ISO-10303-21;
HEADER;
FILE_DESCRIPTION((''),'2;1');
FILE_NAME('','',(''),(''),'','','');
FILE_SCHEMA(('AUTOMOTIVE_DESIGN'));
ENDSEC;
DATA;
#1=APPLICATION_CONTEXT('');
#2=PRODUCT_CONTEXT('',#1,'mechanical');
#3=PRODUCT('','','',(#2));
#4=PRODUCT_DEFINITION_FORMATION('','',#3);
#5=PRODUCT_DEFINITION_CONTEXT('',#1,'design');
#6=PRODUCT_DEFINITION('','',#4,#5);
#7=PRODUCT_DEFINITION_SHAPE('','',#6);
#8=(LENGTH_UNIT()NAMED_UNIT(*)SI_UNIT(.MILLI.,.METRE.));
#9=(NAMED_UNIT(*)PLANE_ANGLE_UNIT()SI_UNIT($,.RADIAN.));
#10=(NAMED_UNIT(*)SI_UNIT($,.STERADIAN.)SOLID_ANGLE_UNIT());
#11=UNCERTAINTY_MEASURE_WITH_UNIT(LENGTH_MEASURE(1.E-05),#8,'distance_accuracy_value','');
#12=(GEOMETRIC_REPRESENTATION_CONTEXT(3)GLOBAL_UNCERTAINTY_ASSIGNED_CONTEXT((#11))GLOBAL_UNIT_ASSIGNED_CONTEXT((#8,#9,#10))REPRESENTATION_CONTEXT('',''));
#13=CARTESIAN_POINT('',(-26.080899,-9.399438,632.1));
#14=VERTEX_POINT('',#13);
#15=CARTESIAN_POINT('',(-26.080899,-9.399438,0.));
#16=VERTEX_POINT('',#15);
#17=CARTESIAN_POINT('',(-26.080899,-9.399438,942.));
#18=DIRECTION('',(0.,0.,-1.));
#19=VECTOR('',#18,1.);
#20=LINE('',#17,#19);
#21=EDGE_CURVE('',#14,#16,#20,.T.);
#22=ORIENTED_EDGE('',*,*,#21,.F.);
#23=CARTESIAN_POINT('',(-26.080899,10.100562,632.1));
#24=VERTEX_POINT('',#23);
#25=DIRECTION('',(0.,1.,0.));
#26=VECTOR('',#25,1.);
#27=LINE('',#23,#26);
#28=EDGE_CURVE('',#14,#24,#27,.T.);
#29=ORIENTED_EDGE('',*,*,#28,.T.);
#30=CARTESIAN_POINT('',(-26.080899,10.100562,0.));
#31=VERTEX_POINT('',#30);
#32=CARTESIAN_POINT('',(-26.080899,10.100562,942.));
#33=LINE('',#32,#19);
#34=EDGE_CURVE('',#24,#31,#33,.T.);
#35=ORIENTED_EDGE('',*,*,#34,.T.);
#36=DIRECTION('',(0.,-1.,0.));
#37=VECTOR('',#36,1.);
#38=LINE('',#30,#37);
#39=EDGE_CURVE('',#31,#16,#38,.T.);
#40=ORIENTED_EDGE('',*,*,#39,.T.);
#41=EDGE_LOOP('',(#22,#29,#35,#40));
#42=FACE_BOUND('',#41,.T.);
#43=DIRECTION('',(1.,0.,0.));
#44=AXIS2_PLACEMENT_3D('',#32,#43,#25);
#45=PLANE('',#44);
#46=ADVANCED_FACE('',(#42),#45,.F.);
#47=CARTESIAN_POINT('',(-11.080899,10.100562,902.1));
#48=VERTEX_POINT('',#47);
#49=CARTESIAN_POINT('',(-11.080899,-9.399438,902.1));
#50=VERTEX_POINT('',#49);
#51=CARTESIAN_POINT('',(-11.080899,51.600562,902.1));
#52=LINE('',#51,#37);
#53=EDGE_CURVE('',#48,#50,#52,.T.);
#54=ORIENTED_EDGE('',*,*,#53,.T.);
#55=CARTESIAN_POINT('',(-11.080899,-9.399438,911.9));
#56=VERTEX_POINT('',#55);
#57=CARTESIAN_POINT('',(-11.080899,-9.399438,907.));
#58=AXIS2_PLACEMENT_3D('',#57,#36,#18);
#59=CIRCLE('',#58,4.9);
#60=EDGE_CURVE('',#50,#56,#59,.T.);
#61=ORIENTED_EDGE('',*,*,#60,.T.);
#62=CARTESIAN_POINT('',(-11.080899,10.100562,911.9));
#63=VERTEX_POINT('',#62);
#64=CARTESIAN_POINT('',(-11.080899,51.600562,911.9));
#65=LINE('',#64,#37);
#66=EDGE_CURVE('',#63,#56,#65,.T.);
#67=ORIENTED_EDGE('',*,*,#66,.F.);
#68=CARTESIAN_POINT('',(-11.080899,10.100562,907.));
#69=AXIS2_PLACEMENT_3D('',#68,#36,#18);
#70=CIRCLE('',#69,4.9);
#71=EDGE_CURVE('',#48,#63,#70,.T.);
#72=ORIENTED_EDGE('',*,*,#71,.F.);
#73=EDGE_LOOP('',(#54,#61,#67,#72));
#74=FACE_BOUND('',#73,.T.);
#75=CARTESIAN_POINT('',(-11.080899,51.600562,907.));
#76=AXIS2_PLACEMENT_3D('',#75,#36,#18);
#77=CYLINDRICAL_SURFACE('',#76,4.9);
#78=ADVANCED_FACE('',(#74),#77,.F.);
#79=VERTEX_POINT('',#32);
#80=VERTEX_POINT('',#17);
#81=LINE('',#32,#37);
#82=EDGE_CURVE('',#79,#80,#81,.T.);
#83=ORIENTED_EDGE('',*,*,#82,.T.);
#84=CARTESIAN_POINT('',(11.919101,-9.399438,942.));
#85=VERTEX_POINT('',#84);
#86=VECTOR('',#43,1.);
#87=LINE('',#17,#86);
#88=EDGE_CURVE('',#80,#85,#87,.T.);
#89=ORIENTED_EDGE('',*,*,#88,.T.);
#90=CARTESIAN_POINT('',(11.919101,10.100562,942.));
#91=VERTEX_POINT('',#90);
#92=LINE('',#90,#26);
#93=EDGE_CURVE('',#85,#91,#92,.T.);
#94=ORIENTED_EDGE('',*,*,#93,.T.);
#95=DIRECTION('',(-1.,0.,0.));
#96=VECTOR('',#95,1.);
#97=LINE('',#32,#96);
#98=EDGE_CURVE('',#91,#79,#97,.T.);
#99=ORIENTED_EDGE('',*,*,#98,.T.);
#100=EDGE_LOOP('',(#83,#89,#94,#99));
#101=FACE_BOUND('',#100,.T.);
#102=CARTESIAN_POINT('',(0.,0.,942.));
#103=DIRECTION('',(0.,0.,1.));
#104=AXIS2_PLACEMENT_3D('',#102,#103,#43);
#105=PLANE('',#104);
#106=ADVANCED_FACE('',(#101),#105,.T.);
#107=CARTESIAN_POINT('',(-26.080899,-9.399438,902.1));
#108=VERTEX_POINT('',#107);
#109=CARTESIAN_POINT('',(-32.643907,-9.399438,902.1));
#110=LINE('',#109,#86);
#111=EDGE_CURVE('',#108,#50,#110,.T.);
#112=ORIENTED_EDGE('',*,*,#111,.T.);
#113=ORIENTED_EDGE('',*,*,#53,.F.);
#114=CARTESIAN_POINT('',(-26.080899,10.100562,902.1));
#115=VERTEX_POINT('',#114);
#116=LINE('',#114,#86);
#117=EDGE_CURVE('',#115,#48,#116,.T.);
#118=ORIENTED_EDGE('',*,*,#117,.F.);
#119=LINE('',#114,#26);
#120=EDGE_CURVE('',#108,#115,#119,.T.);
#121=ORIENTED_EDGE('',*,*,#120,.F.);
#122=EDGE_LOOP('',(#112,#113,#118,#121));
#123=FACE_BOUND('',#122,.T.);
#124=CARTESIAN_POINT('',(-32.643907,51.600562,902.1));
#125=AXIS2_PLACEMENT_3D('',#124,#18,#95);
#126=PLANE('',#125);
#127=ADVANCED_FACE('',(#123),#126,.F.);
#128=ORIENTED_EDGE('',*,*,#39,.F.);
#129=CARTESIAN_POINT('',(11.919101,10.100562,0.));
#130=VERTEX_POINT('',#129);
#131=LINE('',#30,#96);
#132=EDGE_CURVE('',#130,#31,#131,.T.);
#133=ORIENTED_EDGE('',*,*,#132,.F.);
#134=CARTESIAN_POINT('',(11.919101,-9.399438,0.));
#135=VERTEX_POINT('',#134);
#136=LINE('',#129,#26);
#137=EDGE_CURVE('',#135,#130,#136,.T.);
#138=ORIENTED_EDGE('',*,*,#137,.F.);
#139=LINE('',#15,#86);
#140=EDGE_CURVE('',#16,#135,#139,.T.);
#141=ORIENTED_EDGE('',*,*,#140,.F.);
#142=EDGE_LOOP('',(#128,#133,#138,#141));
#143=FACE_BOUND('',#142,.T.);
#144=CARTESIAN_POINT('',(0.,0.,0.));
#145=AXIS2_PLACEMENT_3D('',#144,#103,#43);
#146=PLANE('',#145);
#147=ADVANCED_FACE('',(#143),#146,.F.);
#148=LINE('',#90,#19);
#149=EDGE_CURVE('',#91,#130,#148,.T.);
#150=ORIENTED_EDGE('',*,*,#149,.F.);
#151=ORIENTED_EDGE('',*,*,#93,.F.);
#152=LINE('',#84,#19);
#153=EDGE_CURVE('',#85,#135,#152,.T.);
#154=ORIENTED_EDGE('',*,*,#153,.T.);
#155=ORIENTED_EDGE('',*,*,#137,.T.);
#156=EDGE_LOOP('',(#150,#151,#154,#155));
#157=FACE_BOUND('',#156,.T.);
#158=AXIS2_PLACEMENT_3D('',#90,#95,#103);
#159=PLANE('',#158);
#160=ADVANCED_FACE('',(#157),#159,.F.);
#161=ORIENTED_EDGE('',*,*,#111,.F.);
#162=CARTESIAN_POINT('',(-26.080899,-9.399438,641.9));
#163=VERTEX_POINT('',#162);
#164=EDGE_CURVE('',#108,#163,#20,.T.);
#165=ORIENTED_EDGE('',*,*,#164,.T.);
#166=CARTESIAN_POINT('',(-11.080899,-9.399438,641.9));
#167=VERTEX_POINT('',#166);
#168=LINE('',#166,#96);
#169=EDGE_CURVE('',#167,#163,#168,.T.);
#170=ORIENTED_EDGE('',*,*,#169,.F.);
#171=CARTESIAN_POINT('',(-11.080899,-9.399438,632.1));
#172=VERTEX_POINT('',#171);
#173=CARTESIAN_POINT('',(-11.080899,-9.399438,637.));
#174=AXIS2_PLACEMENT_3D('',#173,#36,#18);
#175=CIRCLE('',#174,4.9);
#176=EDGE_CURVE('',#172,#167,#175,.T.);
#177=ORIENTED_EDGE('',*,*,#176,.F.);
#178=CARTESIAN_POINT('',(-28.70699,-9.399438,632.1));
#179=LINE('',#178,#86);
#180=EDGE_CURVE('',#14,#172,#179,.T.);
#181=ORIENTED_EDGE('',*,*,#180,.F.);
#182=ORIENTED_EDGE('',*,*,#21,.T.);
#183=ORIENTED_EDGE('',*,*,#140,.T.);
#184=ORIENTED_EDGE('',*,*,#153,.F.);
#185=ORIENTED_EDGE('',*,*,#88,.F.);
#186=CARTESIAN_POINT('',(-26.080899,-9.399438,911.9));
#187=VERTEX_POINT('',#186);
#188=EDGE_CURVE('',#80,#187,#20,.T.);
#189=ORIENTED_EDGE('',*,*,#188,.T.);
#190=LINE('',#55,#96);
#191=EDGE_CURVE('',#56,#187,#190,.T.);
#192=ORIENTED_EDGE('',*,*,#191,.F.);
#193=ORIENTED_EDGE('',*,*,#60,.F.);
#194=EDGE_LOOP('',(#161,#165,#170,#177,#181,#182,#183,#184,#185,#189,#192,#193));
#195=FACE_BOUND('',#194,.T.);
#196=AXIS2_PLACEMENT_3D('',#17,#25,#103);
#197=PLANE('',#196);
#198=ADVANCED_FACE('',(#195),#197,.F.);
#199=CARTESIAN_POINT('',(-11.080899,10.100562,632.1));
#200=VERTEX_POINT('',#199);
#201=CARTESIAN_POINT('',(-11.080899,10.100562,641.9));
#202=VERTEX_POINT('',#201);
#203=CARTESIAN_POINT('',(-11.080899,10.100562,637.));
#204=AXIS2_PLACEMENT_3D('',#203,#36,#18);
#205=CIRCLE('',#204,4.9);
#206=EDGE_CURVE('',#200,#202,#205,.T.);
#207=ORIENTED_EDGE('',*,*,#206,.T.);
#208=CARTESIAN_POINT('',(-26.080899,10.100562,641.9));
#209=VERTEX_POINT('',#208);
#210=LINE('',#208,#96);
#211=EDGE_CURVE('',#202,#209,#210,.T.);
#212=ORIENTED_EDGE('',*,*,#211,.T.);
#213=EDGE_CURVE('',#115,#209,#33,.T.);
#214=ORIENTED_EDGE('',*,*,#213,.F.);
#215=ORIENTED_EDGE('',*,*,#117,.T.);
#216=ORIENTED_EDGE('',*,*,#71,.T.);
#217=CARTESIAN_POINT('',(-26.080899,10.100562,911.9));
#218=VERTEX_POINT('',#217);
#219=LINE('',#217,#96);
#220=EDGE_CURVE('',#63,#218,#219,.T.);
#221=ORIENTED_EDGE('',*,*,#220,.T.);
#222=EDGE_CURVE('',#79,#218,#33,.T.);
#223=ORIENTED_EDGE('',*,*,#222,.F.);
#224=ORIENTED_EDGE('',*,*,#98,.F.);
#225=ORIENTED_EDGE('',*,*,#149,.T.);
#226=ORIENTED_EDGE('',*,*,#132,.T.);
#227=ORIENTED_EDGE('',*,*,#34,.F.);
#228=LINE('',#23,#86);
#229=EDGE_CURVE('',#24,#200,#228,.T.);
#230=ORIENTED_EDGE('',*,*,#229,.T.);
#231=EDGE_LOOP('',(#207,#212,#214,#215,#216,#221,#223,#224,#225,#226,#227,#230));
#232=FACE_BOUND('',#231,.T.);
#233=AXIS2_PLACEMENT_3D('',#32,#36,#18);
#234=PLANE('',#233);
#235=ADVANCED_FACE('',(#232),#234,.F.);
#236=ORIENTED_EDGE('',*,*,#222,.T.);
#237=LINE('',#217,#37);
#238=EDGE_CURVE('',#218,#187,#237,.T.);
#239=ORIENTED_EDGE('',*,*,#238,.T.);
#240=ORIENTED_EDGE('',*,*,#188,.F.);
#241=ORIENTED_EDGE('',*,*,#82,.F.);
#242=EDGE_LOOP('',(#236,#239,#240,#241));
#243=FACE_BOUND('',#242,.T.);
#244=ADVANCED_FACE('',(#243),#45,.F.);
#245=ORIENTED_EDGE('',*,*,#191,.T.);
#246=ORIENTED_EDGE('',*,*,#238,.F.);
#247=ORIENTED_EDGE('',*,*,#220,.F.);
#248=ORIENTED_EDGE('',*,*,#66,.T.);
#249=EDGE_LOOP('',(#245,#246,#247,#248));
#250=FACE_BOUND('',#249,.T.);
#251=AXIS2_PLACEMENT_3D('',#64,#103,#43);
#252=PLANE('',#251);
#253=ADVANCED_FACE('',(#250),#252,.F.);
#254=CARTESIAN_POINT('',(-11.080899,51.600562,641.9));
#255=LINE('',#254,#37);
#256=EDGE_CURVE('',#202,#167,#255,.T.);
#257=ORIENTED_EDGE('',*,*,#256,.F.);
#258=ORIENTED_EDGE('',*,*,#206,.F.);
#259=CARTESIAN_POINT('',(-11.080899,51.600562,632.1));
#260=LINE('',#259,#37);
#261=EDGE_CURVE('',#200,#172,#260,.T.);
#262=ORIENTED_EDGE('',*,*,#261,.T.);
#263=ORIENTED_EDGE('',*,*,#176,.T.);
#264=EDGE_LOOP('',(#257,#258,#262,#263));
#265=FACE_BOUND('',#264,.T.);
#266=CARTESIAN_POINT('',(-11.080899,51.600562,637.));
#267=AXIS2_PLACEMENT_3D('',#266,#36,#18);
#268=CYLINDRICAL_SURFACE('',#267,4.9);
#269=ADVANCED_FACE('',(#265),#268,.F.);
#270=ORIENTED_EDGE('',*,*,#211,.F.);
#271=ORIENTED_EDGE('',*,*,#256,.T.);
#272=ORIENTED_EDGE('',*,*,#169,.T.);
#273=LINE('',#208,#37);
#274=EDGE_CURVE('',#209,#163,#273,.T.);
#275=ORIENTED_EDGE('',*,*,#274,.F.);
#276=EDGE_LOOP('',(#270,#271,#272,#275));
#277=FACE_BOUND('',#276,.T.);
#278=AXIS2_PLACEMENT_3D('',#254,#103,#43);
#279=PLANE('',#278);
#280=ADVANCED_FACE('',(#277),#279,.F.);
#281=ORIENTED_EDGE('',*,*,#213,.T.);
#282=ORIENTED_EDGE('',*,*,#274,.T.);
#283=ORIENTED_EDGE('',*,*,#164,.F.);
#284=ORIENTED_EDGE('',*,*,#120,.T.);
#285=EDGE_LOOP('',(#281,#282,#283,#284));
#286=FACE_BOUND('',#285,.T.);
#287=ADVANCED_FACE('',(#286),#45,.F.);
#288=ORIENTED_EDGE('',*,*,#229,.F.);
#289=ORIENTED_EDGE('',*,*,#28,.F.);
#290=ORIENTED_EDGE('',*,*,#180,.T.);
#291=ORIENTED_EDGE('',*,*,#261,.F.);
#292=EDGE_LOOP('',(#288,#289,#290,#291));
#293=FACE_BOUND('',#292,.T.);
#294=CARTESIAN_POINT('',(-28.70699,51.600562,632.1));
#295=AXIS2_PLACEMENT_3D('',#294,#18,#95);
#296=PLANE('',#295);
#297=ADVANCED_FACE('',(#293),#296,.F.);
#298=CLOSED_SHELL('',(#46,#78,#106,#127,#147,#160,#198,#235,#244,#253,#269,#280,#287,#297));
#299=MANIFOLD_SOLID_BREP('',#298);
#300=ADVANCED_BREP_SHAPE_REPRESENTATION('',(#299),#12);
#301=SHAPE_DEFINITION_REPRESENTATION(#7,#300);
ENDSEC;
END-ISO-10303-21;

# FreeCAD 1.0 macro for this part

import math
import FreeCAD as App
import Part
import Sketcher
from FreeCAD import Vector


def add_polygon(sketch, points):
    """Adds a closed chain of lines whose ends are joined by coincident constraints."""
    first, n = sketch.GeometryCount, len(points)
    for a, b in zip(points, points[1:] + points[:1]):
        sketch.addGeometry(Part.LineSegment(App.Vector(*a, 0), App.Vector(*b, 0)), False)
    for i in range(n):
        sketch.addConstraint(Sketcher.Constraint("Coincident", first + i, 2, first + (i + 1) % n, 1))

doc = App.newDocument("Part")
body = doc.addObject("PartDesign::Body", "Body")

# Sketch on XY plane
sketch1 = body.newObject("Sketcher::SketchObject", "Sketch")
sketch1.AttachmentSupport = (doc.getObject("XY_Plane"), [""])
sketch1.MapMode = "FlatFace"
add_polygon(sketch1, [(-26.080899, 10.100562), (-26.080899, -9.399438), (11.919101, -9.399438), (11.919101, 10.100562)])  # lines 0-3
sketch1.addConstraint([
    Sketcher.Constraint("Vertical", 0),
    Sketcher.Constraint("Horizontal", 1),
    Sketcher.Constraint("Vertical", 2),
    Sketcher.Constraint("Horizontal", 3),
    Sketcher.Constraint("DistanceX", 1, 1, 1, 2, 38.0),
    Sketcher.Constraint("DistanceY", 0, 2, 0, 1, 19.5),
    Sketcher.Constraint("DistanceX", 0, 2, -1, 1, 26.080899),
    Sketcher.Constraint("DistanceY", 0, 2, -1, 1, 9.399438),
])
pad1 = body.newObject("PartDesign::Pad", "Pad")
pad1.Profile = sketch1
pad1.Length = 942

# Sketch on XZ plane
sketch2 = body.newObject("Sketcher::SketchObject", "Sketch001")
sketch2.AttachmentSupport = (doc.getObject("XZ_Plane"), [""])
sketch2.MapMode = "FlatFace"
sketch2.AttachmentOffset = App.Placement(Vector(0, 0, 9.399438), App.Rotation())
sketch2.addGeometry([
    Part.LineSegment(Vector(-11.080899, 911.9, 0), Vector(-32.643907, 911.9, 0)),  # 0
    Part.LineSegment(Vector(-32.643907, 911.9, 0), Vector(-32.643907, 902.1, 0)),  # 1
    Part.LineSegment(Vector(-32.643907, 902.1, 0), Vector(-11.080899, 902.1, 0)),  # 2
    Part.ArcOfCircle(Part.Circle(Vector(-11.080899, 907, 0), Vector(0, 0, 1), 4.9), math.radians(-90), math.radians(90)),  # 3
    Part.LineSegment(Vector(-11.080899, 641.9, 0), Vector(-28.70699, 641.9, 0)),  # 4
    Part.LineSegment(Vector(-28.70699, 641.9, 0), Vector(-28.70699, 632.1, 0)),  # 5
    Part.LineSegment(Vector(-28.70699, 632.1, 0), Vector(-11.080899, 632.1, 0)),  # 6
    Part.ArcOfCircle(Part.Circle(Vector(-11.080899, 637, 0), Vector(0, 0, 1), 4.9), math.radians(-90), math.radians(90)),  # 7
], False)
sketch2.addConstraint([
    Sketcher.Constraint("Coincident", 0, 2, 1, 1),
    Sketcher.Constraint("Coincident", 1, 2, 2, 1),
    Sketcher.Constraint("Tangent", 2, 2, 3, 1),
    Sketcher.Constraint("Tangent", 3, 2, 0, 1),
    Sketcher.Constraint("Coincident", 4, 2, 5, 1),
    Sketcher.Constraint("Coincident", 5, 2, 6, 1),
    Sketcher.Constraint("Tangent", 6, 2, 7, 1),
    Sketcher.Constraint("Tangent", 7, 2, 4, 1),
    Sketcher.Constraint("Horizontal", 0),
    Sketcher.Constraint("Vertical", 1),
    Sketcher.Constraint("Horizontal", 2),
    Sketcher.Constraint("Horizontal", 4),
    Sketcher.Constraint("Vertical", 5),
    Sketcher.Constraint("Horizontal", 6),
    Sketcher.Constraint("Equal", 3, 7),
    Sketcher.Constraint("Vertical", 3, 3, 7, 3),
    Sketcher.Constraint("Radius", 3, 4.9),
    Sketcher.Constraint("DistanceY", -1, 1, 3, 3, 907.0),
    Sketcher.Constraint("DistanceY", -1, 1, 7, 3, 637.0),
    Sketcher.Constraint("DistanceX", 0, 2, 0, 1, 21.563008),
    Sketcher.Constraint("DistanceX", 4, 2, 4, 1, 17.626091),
    Sketcher.Constraint("DistanceX", 3, 3, -1, 1, 11.080899),
])
pocket1 = body.newObject("PartDesign::Pocket", "Pocket")
pocket1.Profile = sketch2
pocket1.Length = 61

doc.recompute()
